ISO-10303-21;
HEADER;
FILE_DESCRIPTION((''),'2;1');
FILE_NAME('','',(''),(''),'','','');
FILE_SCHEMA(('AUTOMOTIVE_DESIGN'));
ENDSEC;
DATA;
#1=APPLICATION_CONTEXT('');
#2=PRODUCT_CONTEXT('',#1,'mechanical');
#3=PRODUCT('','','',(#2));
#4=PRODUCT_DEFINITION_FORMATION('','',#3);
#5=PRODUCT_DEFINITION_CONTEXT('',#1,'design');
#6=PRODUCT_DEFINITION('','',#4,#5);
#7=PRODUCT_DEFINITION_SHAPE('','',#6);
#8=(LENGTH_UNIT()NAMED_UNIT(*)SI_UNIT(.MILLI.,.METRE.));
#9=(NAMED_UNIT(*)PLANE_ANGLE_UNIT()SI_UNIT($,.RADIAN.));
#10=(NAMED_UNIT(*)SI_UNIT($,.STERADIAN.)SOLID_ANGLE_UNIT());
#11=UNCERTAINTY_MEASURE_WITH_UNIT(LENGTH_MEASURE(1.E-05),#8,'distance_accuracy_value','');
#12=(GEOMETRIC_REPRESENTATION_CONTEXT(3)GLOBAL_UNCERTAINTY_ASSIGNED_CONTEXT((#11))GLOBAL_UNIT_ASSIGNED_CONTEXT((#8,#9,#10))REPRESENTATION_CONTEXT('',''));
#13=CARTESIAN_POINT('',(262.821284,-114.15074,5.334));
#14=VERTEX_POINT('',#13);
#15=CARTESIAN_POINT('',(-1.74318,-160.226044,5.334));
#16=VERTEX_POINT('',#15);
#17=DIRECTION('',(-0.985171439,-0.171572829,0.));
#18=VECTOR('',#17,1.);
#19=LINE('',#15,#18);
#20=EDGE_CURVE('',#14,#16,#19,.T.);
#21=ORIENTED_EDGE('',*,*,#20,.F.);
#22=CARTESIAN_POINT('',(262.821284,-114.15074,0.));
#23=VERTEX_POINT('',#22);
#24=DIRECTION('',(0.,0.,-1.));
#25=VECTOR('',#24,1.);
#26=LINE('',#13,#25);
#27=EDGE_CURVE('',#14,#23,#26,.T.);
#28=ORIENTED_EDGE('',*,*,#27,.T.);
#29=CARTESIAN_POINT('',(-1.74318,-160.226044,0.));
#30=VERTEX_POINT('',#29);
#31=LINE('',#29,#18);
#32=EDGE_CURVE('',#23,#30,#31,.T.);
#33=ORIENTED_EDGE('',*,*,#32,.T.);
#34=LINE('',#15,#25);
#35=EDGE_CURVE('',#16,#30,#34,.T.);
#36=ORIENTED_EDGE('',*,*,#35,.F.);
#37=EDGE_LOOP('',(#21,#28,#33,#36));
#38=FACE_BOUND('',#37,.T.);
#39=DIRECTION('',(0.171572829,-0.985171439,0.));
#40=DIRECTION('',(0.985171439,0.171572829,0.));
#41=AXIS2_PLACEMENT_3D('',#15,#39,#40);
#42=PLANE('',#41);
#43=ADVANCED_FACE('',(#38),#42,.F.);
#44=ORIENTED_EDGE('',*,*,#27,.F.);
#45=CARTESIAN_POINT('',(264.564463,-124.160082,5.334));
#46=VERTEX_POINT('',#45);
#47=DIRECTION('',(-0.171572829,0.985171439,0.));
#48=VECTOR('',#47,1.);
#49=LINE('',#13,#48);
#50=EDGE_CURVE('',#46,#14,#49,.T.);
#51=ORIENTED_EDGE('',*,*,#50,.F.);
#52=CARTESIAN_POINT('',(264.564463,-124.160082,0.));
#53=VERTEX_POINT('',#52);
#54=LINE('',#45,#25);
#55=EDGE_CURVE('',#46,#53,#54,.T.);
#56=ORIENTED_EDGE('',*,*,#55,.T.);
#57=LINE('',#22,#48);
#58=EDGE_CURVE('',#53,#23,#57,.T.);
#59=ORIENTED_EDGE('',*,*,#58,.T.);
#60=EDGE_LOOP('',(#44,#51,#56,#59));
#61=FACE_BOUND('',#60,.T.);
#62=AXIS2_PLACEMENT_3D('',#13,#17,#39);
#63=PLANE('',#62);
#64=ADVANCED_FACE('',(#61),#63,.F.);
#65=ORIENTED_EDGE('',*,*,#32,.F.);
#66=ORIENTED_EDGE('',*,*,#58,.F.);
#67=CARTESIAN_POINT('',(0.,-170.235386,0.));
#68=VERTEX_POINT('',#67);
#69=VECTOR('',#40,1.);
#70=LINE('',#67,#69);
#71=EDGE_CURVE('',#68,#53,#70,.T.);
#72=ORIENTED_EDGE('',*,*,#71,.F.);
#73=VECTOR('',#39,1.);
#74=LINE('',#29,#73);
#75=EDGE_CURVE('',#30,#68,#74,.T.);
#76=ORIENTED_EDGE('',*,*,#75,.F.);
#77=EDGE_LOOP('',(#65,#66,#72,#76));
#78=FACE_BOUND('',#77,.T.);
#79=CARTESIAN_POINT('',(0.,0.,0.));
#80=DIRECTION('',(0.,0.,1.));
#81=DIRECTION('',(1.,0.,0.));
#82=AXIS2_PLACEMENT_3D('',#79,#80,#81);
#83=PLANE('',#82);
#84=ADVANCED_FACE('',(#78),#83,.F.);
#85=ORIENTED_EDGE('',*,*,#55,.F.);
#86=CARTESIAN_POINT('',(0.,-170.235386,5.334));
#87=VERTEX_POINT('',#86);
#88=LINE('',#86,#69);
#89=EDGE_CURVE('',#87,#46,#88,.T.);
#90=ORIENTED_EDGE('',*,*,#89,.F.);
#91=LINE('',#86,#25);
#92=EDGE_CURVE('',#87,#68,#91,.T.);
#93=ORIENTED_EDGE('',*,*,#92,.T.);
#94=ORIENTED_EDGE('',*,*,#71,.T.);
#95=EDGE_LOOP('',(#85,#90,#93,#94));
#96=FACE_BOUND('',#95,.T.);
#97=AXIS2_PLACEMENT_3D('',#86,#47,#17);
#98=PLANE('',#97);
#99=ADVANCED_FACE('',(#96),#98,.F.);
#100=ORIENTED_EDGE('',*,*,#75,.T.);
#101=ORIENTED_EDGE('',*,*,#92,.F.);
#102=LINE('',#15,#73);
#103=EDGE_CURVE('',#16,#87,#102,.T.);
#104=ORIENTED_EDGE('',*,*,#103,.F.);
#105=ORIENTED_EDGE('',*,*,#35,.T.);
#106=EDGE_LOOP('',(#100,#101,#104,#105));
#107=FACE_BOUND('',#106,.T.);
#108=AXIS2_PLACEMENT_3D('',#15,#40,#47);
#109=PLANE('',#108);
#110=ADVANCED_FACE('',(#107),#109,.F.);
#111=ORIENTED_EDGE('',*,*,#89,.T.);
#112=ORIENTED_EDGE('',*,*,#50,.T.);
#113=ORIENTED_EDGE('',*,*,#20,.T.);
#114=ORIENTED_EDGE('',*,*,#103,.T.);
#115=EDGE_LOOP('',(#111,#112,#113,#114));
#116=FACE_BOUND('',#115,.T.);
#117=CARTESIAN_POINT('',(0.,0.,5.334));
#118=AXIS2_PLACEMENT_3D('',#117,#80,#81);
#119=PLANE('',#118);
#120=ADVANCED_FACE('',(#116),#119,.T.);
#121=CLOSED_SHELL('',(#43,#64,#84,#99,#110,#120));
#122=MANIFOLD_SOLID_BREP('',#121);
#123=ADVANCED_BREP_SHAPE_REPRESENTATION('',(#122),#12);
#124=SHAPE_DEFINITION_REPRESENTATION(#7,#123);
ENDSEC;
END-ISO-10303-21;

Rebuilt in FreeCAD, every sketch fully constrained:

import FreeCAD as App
import Part
import Sketcher

V = App.Vector
Q = App.Units.Quantity

doc = App.newDocument("Part")
params = doc.addObject("Spreadsheet::Sheet", "Params")
for row, (alias, value) in enumerate([
    ("sketch1_length", "0.4 in"),
    ("pad1_length", "0.21 in"),
], start=1):
    params.set(f"A{row}", alias)
    params.set(f"B{row}", "=" + value)
    params.setAlias(f"B{row}", alias)

body = doc.addObject("PartDesign::Body", "Body")

# Sketch on XY plane
sketch1 = body.newObject("Sketcher::SketchObject", "Sketch")
sketch1.AttachmentSupport = (doc.getObject("XY_Plane"), [""])
sketch1.MapMode = "FlatFace"
sketch1.addGeometry(Part.LineSegment(V(263, -114, 0), V(-2, -160, 0)), False)
sketch1.addGeometry(Part.LineSegment(V(-2, -160, 0), V(0, -170, 0)), False)
sketch1.addGeometry(Part.LineSegment(V(0, -170, 0), V(265, -124, 0)), False)
sketch1.addGeometry(Part.LineSegment(V(265, -124, 0), V(263, -114, 0)), False)
sketch1.addConstraint(Sketcher.Constraint("Coincident", 0, 2, 1, 1))
sketch1.addConstraint(Sketcher.Constraint("Coincident", 1, 2, 2, 1))
sketch1.addConstraint(Sketcher.Constraint("Coincident", 2, 2, 3, 1))
sketch1.addConstraint(Sketcher.Constraint("Coincident", 3, 2, 0, 1))
sketch1.addConstraint(Sketcher.Constraint("PointOnObject", 1, 2, -2))
sketch1.addConstraint(Sketcher.Constraint("Perpendicular", 0, 1))
sketch1.addConstraint(Sketcher.Constraint("Perpendicular", 1, 2))
sketch1.addConstraint(Sketcher.Constraint("Perpendicular", 2, 3))
sketch1.addConstraint(Sketcher.Constraint("Distance", 1, Q("0.4 in")))
sketch1.addConstraint(Sketcher.Constraint("DistanceX", 0, 2, -1, 1, 1.74318))
sketch1.addConstraint(Sketcher.Constraint("DistanceY", 2, 2, -1, 1, 124.160082))
sketch1.addConstraint(Sketcher.Constraint("Distance", 0, 268.546623))
sketch1.setExpression("Constraints[8]", "Params.sketch1_length")
pad1 = body.newObject("PartDesign::Pad", "Pad")
pad1.Profile = sketch1
pad1.setExpression("Length", "Params.pad1_length")

doc.recompute()
